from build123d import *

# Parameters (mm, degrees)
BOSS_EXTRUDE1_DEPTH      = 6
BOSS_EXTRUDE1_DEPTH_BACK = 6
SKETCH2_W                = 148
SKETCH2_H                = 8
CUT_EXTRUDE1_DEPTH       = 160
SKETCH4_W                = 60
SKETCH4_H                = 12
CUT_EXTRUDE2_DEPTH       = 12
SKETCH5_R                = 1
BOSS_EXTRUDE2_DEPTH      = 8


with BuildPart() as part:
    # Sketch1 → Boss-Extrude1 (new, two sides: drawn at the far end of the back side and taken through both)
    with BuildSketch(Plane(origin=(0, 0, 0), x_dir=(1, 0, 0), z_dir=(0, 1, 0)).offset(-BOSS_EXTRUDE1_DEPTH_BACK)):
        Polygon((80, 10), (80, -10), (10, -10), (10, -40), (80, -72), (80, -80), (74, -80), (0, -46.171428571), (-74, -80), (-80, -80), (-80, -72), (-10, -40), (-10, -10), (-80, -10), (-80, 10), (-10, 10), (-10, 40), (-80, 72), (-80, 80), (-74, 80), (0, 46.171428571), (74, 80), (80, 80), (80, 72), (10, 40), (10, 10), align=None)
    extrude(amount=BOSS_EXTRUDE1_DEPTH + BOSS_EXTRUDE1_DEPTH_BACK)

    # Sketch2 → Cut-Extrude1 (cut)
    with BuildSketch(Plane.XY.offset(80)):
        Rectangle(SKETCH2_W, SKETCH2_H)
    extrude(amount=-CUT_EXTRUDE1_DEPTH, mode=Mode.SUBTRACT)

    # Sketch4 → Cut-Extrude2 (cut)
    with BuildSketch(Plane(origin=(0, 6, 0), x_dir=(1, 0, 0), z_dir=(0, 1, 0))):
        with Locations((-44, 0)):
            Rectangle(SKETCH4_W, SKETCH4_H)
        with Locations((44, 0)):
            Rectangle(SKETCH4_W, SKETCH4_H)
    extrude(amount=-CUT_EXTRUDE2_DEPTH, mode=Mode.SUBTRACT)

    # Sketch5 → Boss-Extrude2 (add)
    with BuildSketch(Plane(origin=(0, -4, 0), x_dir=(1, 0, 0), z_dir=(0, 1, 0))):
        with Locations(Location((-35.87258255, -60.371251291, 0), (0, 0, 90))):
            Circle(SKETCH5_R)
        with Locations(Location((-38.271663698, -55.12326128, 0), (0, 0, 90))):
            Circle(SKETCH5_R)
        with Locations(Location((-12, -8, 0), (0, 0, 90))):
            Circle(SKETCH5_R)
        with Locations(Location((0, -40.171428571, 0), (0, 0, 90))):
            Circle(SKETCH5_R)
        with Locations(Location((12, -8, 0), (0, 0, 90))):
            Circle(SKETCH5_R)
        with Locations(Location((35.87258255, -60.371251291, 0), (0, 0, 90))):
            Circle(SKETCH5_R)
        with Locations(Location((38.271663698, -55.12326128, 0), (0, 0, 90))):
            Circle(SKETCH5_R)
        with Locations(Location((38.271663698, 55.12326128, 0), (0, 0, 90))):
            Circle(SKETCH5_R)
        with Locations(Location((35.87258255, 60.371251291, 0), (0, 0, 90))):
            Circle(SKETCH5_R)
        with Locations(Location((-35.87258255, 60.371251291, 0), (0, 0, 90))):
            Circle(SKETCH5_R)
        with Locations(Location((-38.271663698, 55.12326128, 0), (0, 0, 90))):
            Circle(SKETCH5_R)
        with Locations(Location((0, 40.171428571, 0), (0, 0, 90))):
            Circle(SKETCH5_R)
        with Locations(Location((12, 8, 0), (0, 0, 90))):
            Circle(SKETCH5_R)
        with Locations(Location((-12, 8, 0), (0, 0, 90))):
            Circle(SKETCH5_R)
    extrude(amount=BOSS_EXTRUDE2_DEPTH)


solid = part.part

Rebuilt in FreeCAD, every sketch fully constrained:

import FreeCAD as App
import Part
import Sketcher

V = App.Vector
Q = App.Units.Quantity

doc = App.newDocument("Part")
body = doc.addObject("PartDesign::Body", "Body")

sketch1 = body.newObject("Sketcher::SketchObject", "Sketch")
sketch1.AttachmentSupport = (doc.getObject("XZ_Plane"), [""])
sketch1.MapMode = "FlatFace"
sketch1.addGeometry([
    Part.LineSegment(V(80, 10, 0), V(80, -10, 0)),
    Part.LineSegment(V(80, -10, 0), V(10, -10, 0)),
    Part.LineSegment(V(10, -10, 0), V(10, -40, 0)),
    Part.LineSegment(V(10, -40, 0), V(80, -72, 0)),
    Part.LineSegment(V(80, -72, 0), V(80, -80, 0)),
    Part.LineSegment(V(80, -80, 0), V(74, -80, 0)),
    Part.LineSegment(V(74, -80, 0), V(0, -46, 0)),
    Part.LineSegment(V(0, -46, 0), V(-74, -80, 0)),
    Part.LineSegment(V(-74, -80, 0), V(-80, -80, 0)),
    Part.LineSegment(V(-80, -80, 0), V(-80, -72, 0)),
    Part.LineSegment(V(-80, -72, 0), V(-10, -40, 0)),
    Part.LineSegment(V(-10, -40, 0), V(-10, -10, 0)),
    Part.LineSegment(V(-10, -10, 0), V(-80, -10, 0)),
    Part.LineSegment(V(-80, -10, 0), V(-80, 10, 0)),
    Part.LineSegment(V(-80, 10, 0), V(-10, 10, 0)),
    Part.LineSegment(V(-10, 10, 0), V(-10, 40, 0)),
    Part.LineSegment(V(-10, 40, 0), V(-80, 72, 0)),
    Part.LineSegment(V(-80, 72, 0), V(-80, 80, 0)),
    Part.LineSegment(V(-80, 80, 0), V(-74, 80, 0)),
    Part.LineSegment(V(-74, 80, 0), V(0, 46, 0)),
    Part.LineSegment(V(0, 46, 0), V(74, 80, 0)),
    Part.LineSegment(V(74, 80, 0), V(80, 80, 0)),
    Part.LineSegment(V(80, 80, 0), V(80, 72, 0)),
    Part.LineSegment(V(80, 72, 0), V(10, 40, 0)),
    Part.LineSegment(V(10, 40, 0), V(10, 10, 0)),
    Part.LineSegment(V(10, 10, 0), V(80, 10, 0)),
], False)
sketch1.addConstraint([
    Sketcher.Constraint("Coincident", 0, 2, 1, 1),
    Sketcher.Constraint("Coincident", 1, 2, 2, 1),
    Sketcher.Constraint("Coincident", 2, 2, 3, 1),
    Sketcher.Constraint("Coincident", 3, 2, 4, 1),
    Sketcher.Constraint("Coincident", 4, 2, 5, 1),
    Sketcher.Constraint("Coincident", 5, 2, 6, 1),
    Sketcher.Constraint("Coincident", 6, 2, 7, 1),
    Sketcher.Constraint("Coincident", 7, 2, 8, 1),
    Sketcher.Constraint("Coincident", 8, 2, 9, 1),
    Sketcher.Constraint("Coincident", 9, 2, 10, 1),
    Sketcher.Constraint("Coincident", 10, 2, 11, 1),
    Sketcher.Constraint("Coincident", 11, 2, 12, 1),
    Sketcher.Constraint("Coincident", 12, 2, 13, 1),
    Sketcher.Constraint("Coincident", 13, 2, 14, 1),
    Sketcher.Constraint("Coincident", 14, 2, 15, 1),
    Sketcher.Constraint("Coincident", 15, 2, 16, 1),
    Sketcher.Constraint("Coincident", 16, 2, 17, 1),
    Sketcher.Constraint("Coincident", 17, 2, 18, 1),
    Sketcher.Constraint("Coincident", 18, 2, 19, 1),
    Sketcher.Constraint("Coincident", 19, 2, 20, 1),
    Sketcher.Constraint("Coincident", 20, 2, 21, 1),
    Sketcher.Constraint("Coincident", 21, 2, 22, 1),
    Sketcher.Constraint("Coincident", 22, 2, 23, 1),
    Sketcher.Constraint("Coincident", 23, 2, 24, 1),
    Sketcher.Constraint("Coincident", 24, 2, 25, 1),
    Sketcher.Constraint("Coincident", 25, 2, 0, 1),
    Sketcher.Constraint("Vertical", 0),
    Sketcher.Constraint("Horizontal", 1),
    Sketcher.Constraint("Vertical", 2),
    Sketcher.Constraint("Vertical", 4),
    Sketcher.Constraint("Horizontal", 5),
    Sketcher.Constraint("Horizontal", 8),
    Sketcher.Constraint("Vertical", 9),
    Sketcher.Constraint("Vertical", 11),
    Sketcher.Constraint("Horizontal", 12),
    Sketcher.Constraint("Vertical", 13),
    Sketcher.Constraint("Horizontal", 14),
    Sketcher.Constraint("Vertical", 15),
    Sketcher.Constraint("Vertical", 17),
    Sketcher.Constraint("Horizontal", 18),
    Sketcher.Constraint("Horizontal", 21),
    Sketcher.Constraint("Vertical", 22),
    Sketcher.Constraint("Vertical", 24),
    Sketcher.Constraint("Horizontal", 25),
    Sketcher.Constraint("Symmetric", 0, 2, 13, 2, -1, 1),
    Sketcher.Constraint("Symmetric", 2, 2, 15, 2, -1, 1),
    Sketcher.Constraint("Symmetric", 3, 2, 16, 2, -1, 1),
    Sketcher.Constraint("Symmetric", 5, 2, 18, 2, -1, 1),
    Sketcher.Constraint("Symmetric", 6, 2, 19, 2, -1, 1),
    Sketcher.Constraint("Symmetric", 7, 2, 20, 2, -1, 1),
    Sketcher.Constraint("Symmetric", 9, 2, 22, 2, -1, 1),
    Sketcher.Constraint("Symmetric", 10, 2, 23, 2, -1, 1),
    Sketcher.Constraint("Symmetric", 5, 2, 7, 2, -2),
    Sketcher.Constraint("Symmetric", 3, 2, 9, 2, -2),
    Sketcher.Constraint("Symmetric", 2, 2, 10, 2, -2),
    Sketcher.Constraint("PointOnObject", 6, 2, -2),
    Sketcher.Constraint("Parallel", 3, 6),
    Sketcher.Constraint("Horizontal", 1, 2, 11, 2),
    Sketcher.Constraint("Horizontal", 14, 2, 24, 2),
    Sketcher.Constraint("Vertical", 0, 2, 3, 2),
    Sketcher.Constraint("DistanceX", 1, 2, 1, 1, Q("70 mm")),
    Sketcher.Constraint("DistanceX", 5, 2, 5, 1, Q("6 mm")),
    Sketcher.Constraint("DistanceY", 0, 2, 0, 1, Q("20 mm")),
    Sketcher.Constraint("DistanceY", 2, 2, 2, 1, Q("30 mm")),
    Sketcher.Constraint("DistanceY", 4, 2, 4, 1, Q("8 mm")),
    Sketcher.Constraint("DistanceX", -1, 1, 0, 2, Q("80 mm")),
    Sketcher.Constraint("DistanceY", 3, 2, -1, 1, Q("72 mm")),
])
pad1 = body.newObject("PartDesign::Pad", "Pad")
pad1.Profile = sketch1
pad1.Type = "TwoLengths"
pad1.Length = 6
pad1.Length2 = 6
pad1.Reversed = True

sketch2 = body.newObject("Sketcher::SketchObject", "Sketch001")
sketch2.AttachmentSupport = (doc.getObject("XY_Plane"), [""])
sketch2.MapMode = "FlatFace"
sketch2.AttachmentOffset = App.Placement(V(0, 0, 80), App.Rotation())
sketch2.addGeometry([
    Part.LineSegment(V(-74, 4, 0), V(-74, -4, 0)),
    Part.LineSegment(V(-74, -4, 0), V(74, -4, 0)),
    Part.LineSegment(V(74, -4, 0), V(74, 4, 0)),
    Part.LineSegment(V(74, 4, 0), V(-74, 4, 0)),
], False)
sketch2.addConstraint([
    Sketcher.Constraint("Coincident", 0, 2, 1, 1),
    Sketcher.Constraint("Coincident", 1, 2, 2, 1),
    Sketcher.Constraint("Coincident", 2, 2, 3, 1),
    Sketcher.Constraint("Coincident", 3, 2, 0, 1),
    Sketcher.Constraint("Vertical", 0),
    Sketcher.Constraint("Horizontal", 1),
    Sketcher.Constraint("Vertical", 2),
    Sketcher.Constraint("Horizontal", 3),
    Sketcher.Constraint("Symmetric", 0, 2, 2, 2, -1, 1),
    Sketcher.Constraint("DistanceX", 1, 1, 1, 2, Q("148 mm")),
    Sketcher.Constraint("DistanceY", 0, 2, 0, 1, Q("8 mm")),
])
pocket1 = body.newObject("PartDesign::Pocket", "Pocket")
pocket1.Profile = sketch2
pocket1.Length = 160

sketch3 = body.newObject("Sketcher::SketchObject", "Sketch002")
sketch3.AttachmentSupport = (doc.getObject("XZ_Plane"), [""])
sketch3.MapMode = "FlatFace"
sketch3.AttachmentOffset = App.Placement(V(0, 0, -6), App.Rotation())
sketch3.addGeometry([
    Part.LineSegment(V(-74, -6, 0), V(-74, 6, 0)),
    Part.LineSegment(V(-74, 6, 0), V(-14, 6, 0)),
    Part.LineSegment(V(-14, 6, 0), V(-14, -6, 0)),
    Part.LineSegment(V(-14, -6, 0), V(-74, -6, 0)),
    Part.LineSegment(V(14, -6, 0), V(14, 6, 0)),
    Part.LineSegment(V(14, 6, 0), V(74, 6, 0)),
    Part.LineSegment(V(74, 6, 0), V(74, -6, 0)),
    Part.LineSegment(V(74, -6, 0), V(14, -6, 0)),
], False)
sketch3.addConstraint([
    Sketcher.Constraint("Coincident", 0, 2, 1, 1),
    Sketcher.Constraint("Coincident", 1, 2, 2, 1),
    Sketcher.Constraint("Coincident", 2, 2, 3, 1),
    Sketcher.Constraint("Coincident", 3, 2, 0, 1),
    Sketcher.Constraint("Coincident", 4, 2, 5, 1),
    Sketcher.Constraint("Coincident", 5, 2, 6, 1),
    Sketcher.Constraint("Coincident", 6, 2, 7, 1),
    Sketcher.Constraint("Coincident", 7, 2, 4, 1),
    Sketcher.Constraint("Vertical", 0),
    Sketcher.Constraint("Horizontal", 1),
    Sketcher.Constraint("Vertical", 2),
    Sketcher.Constraint("Horizontal", 3),
    Sketcher.Constraint("Vertical", 4),
    Sketcher.Constraint("Horizontal", 5),
    Sketcher.Constraint("Vertical", 6),
    Sketcher.Constraint("Horizontal", 7),
    Sketcher.Constraint("Symmetric", 2, 2, 4, 2, -1, 1),
    Sketcher.Constraint("Symmetric", 0, 2, 6, 2, -1, 1),
    Sketcher.Constraint("Horizontal", 1, 2, 4, 2),
    Sketcher.Constraint("DistanceX", 1, 1, 1, 2, Q("60 mm")),
    Sketcher.Constraint("DistanceY", 0, 1, 0, 2, Q("12 mm")),
    Sketcher.Constraint("DistanceX", 0, 2, -1, 1, Q("74 mm")),
])
pocket2 = body.newObject("PartDesign::Pocket", "Pocket001")
pocket2.Profile = sketch3
pocket2.Length = 12
pocket2.Reversed = True

sketch4 = body.newObject("Sketcher::SketchObject", "Sketch003")
sketch4.AttachmentSupport = (doc.getObject("XZ_Plane"), [""])
sketch4.MapMode = "FlatFace"
sketch4.AttachmentOffset = App.Placement(V(0, 0, 4), App.Rotation())
sketch4.addGeometry([
    Part.Circle(V(-35.9, 60.4, 0), V(0, 0, 1), 1),
    Part.Circle(V(-38.3, 55.1, 0), V(0, 0, 1), 1),
    Part.Circle(V(-12, 8, 0), V(0, 0, 1), 1),
    Part.Circle(V(0, 40.2, 0), V(0, 0, 1), 1),
    Part.Circle(V(12, 8, 0), V(0, 0, 1), 1),
    Part.Circle(V(35.9, 60.4, 0), V(0, 0, 1), 1),
    Part.Circle(V(38.3, 55.1, 0), V(0, 0, 1), 1),
    Part.Circle(V(38.3, -55.1, 0), V(0, 0, 1), 1),
    Part.Circle(V(35.9, -60.4, 0), V(0, 0, 1), 1),
    Part.Circle(V(-35.9, -60.4, 0), V(0, 0, 1), 1),
    Part.Circle(V(-38.3, -55.1, 0), V(0, 0, 1), 1),
    Part.Circle(V(0, -40.2, 0), V(0, 0, 1), 1),
    Part.Circle(V(12, -8, 0), V(0, 0, 1), 1),
    Part.Circle(V(-12, -8, 0), V(0, 0, 1), 1),
], False)
sketch4.addConstraint([
    Sketcher.Constraint("Equal", 0, 1),
    Sketcher.Constraint("Equal", 1, 2),
    Sketcher.Constraint("Equal", 2, 3),
    Sketcher.Constraint("Equal", 3, 4),
    Sketcher.Constraint("Equal", 4, 5),
    Sketcher.Constraint("Equal", 5, 6),
    Sketcher.Constraint("Equal", 6, 7),
    Sketcher.Constraint("Equal", 7, 8),
    Sketcher.Constraint("Equal", 8, 9),
    Sketcher.Constraint("Equal", 9, 10),
    Sketcher.Constraint("Equal", 10, 11),
    Sketcher.Constraint("Equal", 11, 12),
    Sketcher.Constraint("Equal", 12, 13),
    Sketcher.Constraint("Symmetric", 1, 3, 7, 3, -1, 1),
    Sketcher.Constraint("Symmetric", 0, 3, 8, 3, -1, 1),
    Sketcher.Constraint("Symmetric", 5, 3, 9, 3, -1, 1),
    Sketcher.Constraint("Symmetric", 6, 3, 10, 3, -1, 1),
    Sketcher.Constraint("Symmetric", 3, 3, 11, 3, -1, 1),
    Sketcher.Constraint("Symmetric", 2, 3, 12, 3, -1, 1),
    Sketcher.Constraint("Symmetric", 4, 3, 13, 3, -1, 1),
    Sketcher.Constraint("Symmetric", 2, 3, 4, 3, -2),
    Sketcher.Constraint("Symmetric", 0, 3, 5, 3, -2),
    Sketcher.Constraint("Symmetric", 1, 3, 6, 3, -2),
    Sketcher.Constraint("PointOnObject", 3, 3, -2),
    Sketcher.Constraint("Diameter", 0, Q("2 mm")),
    Sketcher.Constraint("DistanceX", 2, 3, -1, 1, Q("12 mm")),
    Sketcher.Constraint("DistanceY", -1, 1, 2, 3, Q("8 mm")),
    Sketcher.Constraint("DistanceY", -1, 1, 0, 3, Q("60.371251 mm")),
    Sketcher.Constraint("DistanceY", -1, 1, 1, 3, Q("55.123261 mm")),
    Sketcher.Constraint("DistanceY", -1, 1, 3, 3, Q("40.171429 mm")),
    Sketcher.Constraint("DistanceX", 1, 3, 0, 3, Q("2.399081 mm")),
    Sketcher.Constraint("DistanceX", 0, 3, -1, 1, Q("35.872583 mm")),
])
pad2 = body.newObject("PartDesign::Pad", "Pad001")
pad2.Profile = sketch4
pad2.Length = 8
pad2.Reversed = True

doc.recompute()
